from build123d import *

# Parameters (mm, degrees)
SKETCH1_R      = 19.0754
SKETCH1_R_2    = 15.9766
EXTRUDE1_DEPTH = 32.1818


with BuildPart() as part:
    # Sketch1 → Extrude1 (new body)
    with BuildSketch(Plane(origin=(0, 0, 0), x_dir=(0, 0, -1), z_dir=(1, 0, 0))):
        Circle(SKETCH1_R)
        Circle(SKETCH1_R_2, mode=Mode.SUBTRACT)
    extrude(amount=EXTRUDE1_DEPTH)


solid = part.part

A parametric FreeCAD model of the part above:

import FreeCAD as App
import Part
import Sketcher

V = App.Vector
Q = App.Units.Quantity

doc = App.newDocument("Part")
body = doc.addObject("PartDesign::Body", "Body")

sketch1 = body.newObject("Sketcher::SketchObject", "Sketch")
sketch1.AttachmentSupport = (doc.getObject("YZ_Plane"), [""])
sketch1.MapMode = "FlatFace"
sketch1.addGeometry([
    Part.Circle(V(0, 0, 0), V(0, 0, 1), 19.0754),
    Part.Circle(V(0, 0, 0), V(0, 0, 1), 15.9766),
], False)
sketch1.addConstraint([
    Sketcher.Constraint("Coincident", 0, 3, -1, 1),
    Sketcher.Constraint("Coincident", 1, 3, -1, 1),
    Sketcher.Constraint("Diameter", 0, Q("1.502 in")),
    Sketcher.Constraint("Diameter", 1, Q("1.258 in")),
])
pad1 = body.newObject("PartDesign::Pad", "Pad")
pad1.Profile = sketch1
pad1.Length = Q("1.267 in")

doc.recompute()
